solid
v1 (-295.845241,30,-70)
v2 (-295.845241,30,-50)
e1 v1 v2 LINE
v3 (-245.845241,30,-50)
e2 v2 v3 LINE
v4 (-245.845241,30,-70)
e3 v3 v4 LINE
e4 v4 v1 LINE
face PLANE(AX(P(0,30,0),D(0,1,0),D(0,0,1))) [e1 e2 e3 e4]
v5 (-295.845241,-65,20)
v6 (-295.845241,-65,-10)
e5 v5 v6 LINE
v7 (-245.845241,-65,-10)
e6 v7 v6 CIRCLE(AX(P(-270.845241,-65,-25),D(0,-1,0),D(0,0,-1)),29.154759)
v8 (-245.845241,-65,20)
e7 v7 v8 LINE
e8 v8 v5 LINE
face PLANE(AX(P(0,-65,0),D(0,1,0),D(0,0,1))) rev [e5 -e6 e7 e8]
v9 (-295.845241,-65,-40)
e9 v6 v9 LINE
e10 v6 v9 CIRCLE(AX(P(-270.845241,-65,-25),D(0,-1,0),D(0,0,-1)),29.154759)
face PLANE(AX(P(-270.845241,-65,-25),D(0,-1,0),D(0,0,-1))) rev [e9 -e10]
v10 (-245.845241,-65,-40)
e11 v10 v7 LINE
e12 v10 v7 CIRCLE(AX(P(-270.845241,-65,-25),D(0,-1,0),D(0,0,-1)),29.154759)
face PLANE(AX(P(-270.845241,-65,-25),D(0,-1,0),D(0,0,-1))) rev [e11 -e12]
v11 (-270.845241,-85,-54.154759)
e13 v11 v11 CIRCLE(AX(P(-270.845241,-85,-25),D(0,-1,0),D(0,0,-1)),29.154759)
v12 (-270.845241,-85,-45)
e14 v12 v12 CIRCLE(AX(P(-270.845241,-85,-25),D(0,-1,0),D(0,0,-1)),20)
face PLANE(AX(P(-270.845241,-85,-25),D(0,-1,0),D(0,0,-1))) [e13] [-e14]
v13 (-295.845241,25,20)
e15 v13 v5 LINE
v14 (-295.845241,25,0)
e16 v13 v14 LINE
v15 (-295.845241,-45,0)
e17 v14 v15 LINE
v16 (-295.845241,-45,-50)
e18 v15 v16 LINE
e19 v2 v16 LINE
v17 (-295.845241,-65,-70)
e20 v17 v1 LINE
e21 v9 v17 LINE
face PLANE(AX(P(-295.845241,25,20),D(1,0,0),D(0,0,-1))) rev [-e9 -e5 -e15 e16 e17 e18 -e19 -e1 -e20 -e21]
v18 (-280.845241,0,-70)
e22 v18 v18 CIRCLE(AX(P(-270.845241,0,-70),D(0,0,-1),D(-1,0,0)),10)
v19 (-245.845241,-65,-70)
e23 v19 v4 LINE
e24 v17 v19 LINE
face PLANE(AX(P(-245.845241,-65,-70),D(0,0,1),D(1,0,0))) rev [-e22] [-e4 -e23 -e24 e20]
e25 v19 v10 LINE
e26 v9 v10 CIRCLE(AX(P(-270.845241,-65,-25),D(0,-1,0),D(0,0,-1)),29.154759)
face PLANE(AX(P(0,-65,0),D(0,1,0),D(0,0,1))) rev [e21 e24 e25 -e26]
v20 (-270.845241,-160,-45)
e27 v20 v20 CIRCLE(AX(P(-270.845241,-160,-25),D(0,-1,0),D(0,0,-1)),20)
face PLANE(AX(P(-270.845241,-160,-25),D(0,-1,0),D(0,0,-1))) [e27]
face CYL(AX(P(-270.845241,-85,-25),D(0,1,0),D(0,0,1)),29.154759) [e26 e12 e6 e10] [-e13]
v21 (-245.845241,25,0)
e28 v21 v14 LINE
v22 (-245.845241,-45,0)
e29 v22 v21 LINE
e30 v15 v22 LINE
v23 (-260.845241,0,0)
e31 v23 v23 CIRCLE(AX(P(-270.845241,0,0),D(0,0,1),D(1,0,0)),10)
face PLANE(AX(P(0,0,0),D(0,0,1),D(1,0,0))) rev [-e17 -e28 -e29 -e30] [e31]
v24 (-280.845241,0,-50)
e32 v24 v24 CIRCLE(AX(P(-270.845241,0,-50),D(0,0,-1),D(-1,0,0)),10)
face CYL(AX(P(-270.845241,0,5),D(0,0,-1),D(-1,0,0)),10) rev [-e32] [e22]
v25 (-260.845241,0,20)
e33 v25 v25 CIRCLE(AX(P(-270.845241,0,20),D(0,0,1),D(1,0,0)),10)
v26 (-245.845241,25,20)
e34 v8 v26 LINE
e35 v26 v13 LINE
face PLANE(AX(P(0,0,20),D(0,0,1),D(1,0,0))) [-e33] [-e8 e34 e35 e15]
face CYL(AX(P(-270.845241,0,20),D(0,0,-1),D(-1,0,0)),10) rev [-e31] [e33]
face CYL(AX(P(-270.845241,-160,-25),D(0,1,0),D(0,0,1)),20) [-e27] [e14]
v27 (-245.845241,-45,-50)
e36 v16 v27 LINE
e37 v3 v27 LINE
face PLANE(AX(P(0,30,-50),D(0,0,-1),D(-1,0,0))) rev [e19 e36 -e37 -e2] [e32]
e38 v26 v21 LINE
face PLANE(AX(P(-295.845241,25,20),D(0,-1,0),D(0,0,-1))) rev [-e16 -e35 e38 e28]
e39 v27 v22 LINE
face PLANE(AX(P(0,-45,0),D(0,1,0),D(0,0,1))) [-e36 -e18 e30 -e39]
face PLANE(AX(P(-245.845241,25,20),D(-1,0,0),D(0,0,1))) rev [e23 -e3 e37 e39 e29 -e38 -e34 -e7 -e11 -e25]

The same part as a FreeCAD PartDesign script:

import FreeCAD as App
import Part
import Sketcher


def add_polygon(sketch, points):
    """Adds a closed chain of lines whose ends are joined by coincident constraints."""
    first, n = sketch.GeometryCount, len(points)
    for a, b in zip(points, points[1:] + points[:1]):
        sketch.addGeometry(Part.LineSegment(App.Vector(*a, 0), App.Vector(*b, 0)), False)
    for i in range(n):
        sketch.addConstraint(Sketcher.Constraint("Coincident", first + i, 2, first + (i + 1) % n, 1))

doc = App.newDocument("Part")
body = doc.addObject("PartDesign::Body", "Body")

# Sketch on XY plane
sketch1 = doc.addObject("Sketcher::SketchObject", "Sketch")
body.addObject(sketch1)
sketch1.AttachmentSupport = (doc.XY_Plane, [""])
sketch1.MapMode = "FlatFace"
add_polygon(sketch1, [(-296, 25), (-296, -45), (-246, -45), (-246, 25)])  # lines 0-3
sketch1.addGeometry(Part.Circle(App.Vector(-271, 0, 0), App.Vector(0, 0, 1), 10), False)  # 4
sketch1.addConstraint(Sketcher.Constraint("Vertical", 0))
sketch1.addConstraint(Sketcher.Constraint("Horizontal", 1))
sketch1.addConstraint(Sketcher.Constraint("Vertical", 2))
sketch1.addConstraint(Sketcher.Constraint("Horizontal", 3))
sketch1.addConstraint(Sketcher.Constraint("PointOnObject", 4, 3, -1))
sketch1.addConstraint(Sketcher.Constraint("Diameter", 4, 20.0))
sketch1.addConstraint(Sketcher.Constraint("DistanceX", 1, 1, 1, 2, 50.0))
sketch1.addConstraint(Sketcher.Constraint("DistanceY", 0, 2, 0, 1, 70.0))
sketch1.addConstraint(Sketcher.Constraint("DistanceY", 0, 2, -1, 1, 45.0))
sketch1.addConstraint(Sketcher.Constraint("DistanceX", 0, 2, 4, 3, 25.0))
sketch1.addConstraint(Sketcher.Constraint("DistanceX", 4, 3, -1, 1, 270.845241))
pad1 = doc.addObject("PartDesign::Pad", "Pad")
body.addObject(pad1)
pad1.Profile = sketch1
pad1.Length = 20

# Sketch on XZ plane
sketch2 = doc.addObject("Sketcher::SketchObject", "Sketch001")
body.addObject(sketch2)
sketch2.AttachmentSupport = (doc.XZ_Plane, [""])
sketch2.MapMode = "FlatFace"
sketch2.AttachmentOffset = App.Placement(App.Vector(0, 0, 45), App.Rotation())
add_polygon(sketch2, [(-296, 20), (-296, -70), (-246, -70), (-246, 20)])  # lines 0-3
sketch2.addConstraint(Sketcher.Constraint("Vertical", 0))
sketch2.addConstraint(Sketcher.Constraint("Horizontal", 1))
sketch2.addConstraint(Sketcher.Constraint("Vertical", 2))
sketch2.addConstraint(Sketcher.Constraint("Horizontal", 3))
sketch2.addConstraint(Sketcher.Constraint("DistanceX", 1, 1, 1, 2, 50.0))
sketch2.addConstraint(Sketcher.Constraint("DistanceY", 0, 2, 0, 1, 90.0))
sketch2.addConstraint(Sketcher.Constraint("DistanceY", 0, 2, -1, 1, 70.0))
sketch2.addConstraint(Sketcher.Constraint("DistanceX", 0, 2, -1, 1, 295.845241))
pad2 = doc.addObject("PartDesign::Pad", "Pad001")
body.addObject(pad2)
pad2.Profile = sketch2
pad2.Length = 20

# Sketch on XZ plane
sketch3 = doc.addObject("Sketcher::SketchObject", "Sketch002")
body.addObject(sketch3)
sketch3.AttachmentSupport = (doc.XZ_Plane, [""])
sketch3.MapMode = "FlatFace"
sketch3.AttachmentOffset = App.Placement(App.Vector(0, 0, 65), App.Rotation())
sketch3.addGeometry(Part.Circle(App.Vector(-271, -25, 0), App.Vector(0, 0, 1), 29), False)
sketch3.addConstraint(Sketcher.Constraint("DistanceY", 0, 3, -1, 1, 25.0))
sketch3.addConstraint(Sketcher.Constraint("Diameter", 0, 58.309519))
sketch3.addConstraint(Sketcher.Constraint("DistanceX", 0, 3, -1, 1, 270.845241))
pad3 = doc.addObject("PartDesign::Pad", "Pad002")
body.addObject(pad3)
pad3.Profile = sketch3
pad3.Length = 20

# Sketch on XZ plane
sketch4 = doc.addObject("Sketcher::SketchObject", "Sketch003")
body.addObject(sketch4)
sketch4.AttachmentSupport = (doc.XZ_Plane, [""])
sketch4.MapMode = "FlatFace"
sketch4.AttachmentOffset = App.Placement(App.Vector(0, 0, 85), App.Rotation())
sketch4.addGeometry(Part.Circle(App.Vector(-271, -25, 0), App.Vector(0, 0, 1), 20), False)
sketch4.addConstraint(Sketcher.Constraint("Diameter", 0, 40.0))
sketch4.addConstraint(Sketcher.Constraint("DistanceY", 0, 3, -1, 1, 25.0))
sketch4.addConstraint(Sketcher.Constraint("DistanceX", 0, 3, -1, 1, 270.845241))
pad4 = doc.addObject("PartDesign::Pad", "Pad003")
body.addObject(pad4)
pad4.Profile = sketch4
pad4.Length = 75

# Sketch on XZ plane
sketch5 = doc.addObject("Sketcher::SketchObject", "Sketch004")
body.addObject(sketch5)
sketch5.AttachmentSupport = (doc.XZ_Plane, [""])
sketch5.MapMode = "FlatFace"
sketch5.AttachmentOffset = App.Placement(App.Vector(0, 0, 45), App.Rotation())
add_polygon(sketch5, [(-296, -70), (-296, -50), (-246, -50), (-246, -70)])  # lines 0-3
sketch5.addConstraint(Sketcher.Constraint("Vertical", 0))
sketch5.addConstraint(Sketcher.Constraint("Horizontal", 1))
sketch5.addConstraint(Sketcher.Constraint("Vertical", 2))
sketch5.addConstraint(Sketcher.Constraint("Horizontal", 3))
sketch5.addConstraint(Sketcher.Constraint("DistanceX", 1, 1, 1, 2, 50.0))
sketch5.addConstraint(Sketcher.Constraint("DistanceY", 0, 1, 0, 2, 20.0))
sketch5.addConstraint(Sketcher.Constraint("DistanceY", 0, 2, -1, 1, 50.0))
sketch5.addConstraint(Sketcher.Constraint("DistanceX", 0, 2, -1, 1, 295.845241))
pad5 = doc.addObject("PartDesign::Pad", "Pad004")
body.addObject(pad5)
pad5.Profile = sketch5
pad5.Length = 75
pad5.Reversed = True

# Sketch on XY plane
sketch6 = doc.addObject("Sketcher::SketchObject", "Sketch005")
body.addObject(sketch6)
sketch6.AttachmentSupport = (doc.XY_Plane, [""])
sketch6.MapMode = "FlatFace"
sketch6.AttachmentOffset = App.Placement(App.Vector(0, 0, -70), App.Rotation())
sketch6.addGeometry(Part.Circle(App.Vector(-271, 0, 0), App.Vector(0, 0, 1), 10), False)
sketch6.addConstraint(Sketcher.Constraint("PointOnObject", 0, 3, -1))
sketch6.addConstraint(Sketcher.Constraint("Diameter", 0, 20.0))
sketch6.addConstraint(Sketcher.Constraint("DistanceX", 0, 3, -1, 1, 270.845241))
pocket1 = doc.addObject("PartDesign::Pocket", "Pocket")
body.addObject(pocket1)
pocket1.Profile = sketch6
pocket1.Length = 75
pocket1.Reversed = True

doc.recompute()
